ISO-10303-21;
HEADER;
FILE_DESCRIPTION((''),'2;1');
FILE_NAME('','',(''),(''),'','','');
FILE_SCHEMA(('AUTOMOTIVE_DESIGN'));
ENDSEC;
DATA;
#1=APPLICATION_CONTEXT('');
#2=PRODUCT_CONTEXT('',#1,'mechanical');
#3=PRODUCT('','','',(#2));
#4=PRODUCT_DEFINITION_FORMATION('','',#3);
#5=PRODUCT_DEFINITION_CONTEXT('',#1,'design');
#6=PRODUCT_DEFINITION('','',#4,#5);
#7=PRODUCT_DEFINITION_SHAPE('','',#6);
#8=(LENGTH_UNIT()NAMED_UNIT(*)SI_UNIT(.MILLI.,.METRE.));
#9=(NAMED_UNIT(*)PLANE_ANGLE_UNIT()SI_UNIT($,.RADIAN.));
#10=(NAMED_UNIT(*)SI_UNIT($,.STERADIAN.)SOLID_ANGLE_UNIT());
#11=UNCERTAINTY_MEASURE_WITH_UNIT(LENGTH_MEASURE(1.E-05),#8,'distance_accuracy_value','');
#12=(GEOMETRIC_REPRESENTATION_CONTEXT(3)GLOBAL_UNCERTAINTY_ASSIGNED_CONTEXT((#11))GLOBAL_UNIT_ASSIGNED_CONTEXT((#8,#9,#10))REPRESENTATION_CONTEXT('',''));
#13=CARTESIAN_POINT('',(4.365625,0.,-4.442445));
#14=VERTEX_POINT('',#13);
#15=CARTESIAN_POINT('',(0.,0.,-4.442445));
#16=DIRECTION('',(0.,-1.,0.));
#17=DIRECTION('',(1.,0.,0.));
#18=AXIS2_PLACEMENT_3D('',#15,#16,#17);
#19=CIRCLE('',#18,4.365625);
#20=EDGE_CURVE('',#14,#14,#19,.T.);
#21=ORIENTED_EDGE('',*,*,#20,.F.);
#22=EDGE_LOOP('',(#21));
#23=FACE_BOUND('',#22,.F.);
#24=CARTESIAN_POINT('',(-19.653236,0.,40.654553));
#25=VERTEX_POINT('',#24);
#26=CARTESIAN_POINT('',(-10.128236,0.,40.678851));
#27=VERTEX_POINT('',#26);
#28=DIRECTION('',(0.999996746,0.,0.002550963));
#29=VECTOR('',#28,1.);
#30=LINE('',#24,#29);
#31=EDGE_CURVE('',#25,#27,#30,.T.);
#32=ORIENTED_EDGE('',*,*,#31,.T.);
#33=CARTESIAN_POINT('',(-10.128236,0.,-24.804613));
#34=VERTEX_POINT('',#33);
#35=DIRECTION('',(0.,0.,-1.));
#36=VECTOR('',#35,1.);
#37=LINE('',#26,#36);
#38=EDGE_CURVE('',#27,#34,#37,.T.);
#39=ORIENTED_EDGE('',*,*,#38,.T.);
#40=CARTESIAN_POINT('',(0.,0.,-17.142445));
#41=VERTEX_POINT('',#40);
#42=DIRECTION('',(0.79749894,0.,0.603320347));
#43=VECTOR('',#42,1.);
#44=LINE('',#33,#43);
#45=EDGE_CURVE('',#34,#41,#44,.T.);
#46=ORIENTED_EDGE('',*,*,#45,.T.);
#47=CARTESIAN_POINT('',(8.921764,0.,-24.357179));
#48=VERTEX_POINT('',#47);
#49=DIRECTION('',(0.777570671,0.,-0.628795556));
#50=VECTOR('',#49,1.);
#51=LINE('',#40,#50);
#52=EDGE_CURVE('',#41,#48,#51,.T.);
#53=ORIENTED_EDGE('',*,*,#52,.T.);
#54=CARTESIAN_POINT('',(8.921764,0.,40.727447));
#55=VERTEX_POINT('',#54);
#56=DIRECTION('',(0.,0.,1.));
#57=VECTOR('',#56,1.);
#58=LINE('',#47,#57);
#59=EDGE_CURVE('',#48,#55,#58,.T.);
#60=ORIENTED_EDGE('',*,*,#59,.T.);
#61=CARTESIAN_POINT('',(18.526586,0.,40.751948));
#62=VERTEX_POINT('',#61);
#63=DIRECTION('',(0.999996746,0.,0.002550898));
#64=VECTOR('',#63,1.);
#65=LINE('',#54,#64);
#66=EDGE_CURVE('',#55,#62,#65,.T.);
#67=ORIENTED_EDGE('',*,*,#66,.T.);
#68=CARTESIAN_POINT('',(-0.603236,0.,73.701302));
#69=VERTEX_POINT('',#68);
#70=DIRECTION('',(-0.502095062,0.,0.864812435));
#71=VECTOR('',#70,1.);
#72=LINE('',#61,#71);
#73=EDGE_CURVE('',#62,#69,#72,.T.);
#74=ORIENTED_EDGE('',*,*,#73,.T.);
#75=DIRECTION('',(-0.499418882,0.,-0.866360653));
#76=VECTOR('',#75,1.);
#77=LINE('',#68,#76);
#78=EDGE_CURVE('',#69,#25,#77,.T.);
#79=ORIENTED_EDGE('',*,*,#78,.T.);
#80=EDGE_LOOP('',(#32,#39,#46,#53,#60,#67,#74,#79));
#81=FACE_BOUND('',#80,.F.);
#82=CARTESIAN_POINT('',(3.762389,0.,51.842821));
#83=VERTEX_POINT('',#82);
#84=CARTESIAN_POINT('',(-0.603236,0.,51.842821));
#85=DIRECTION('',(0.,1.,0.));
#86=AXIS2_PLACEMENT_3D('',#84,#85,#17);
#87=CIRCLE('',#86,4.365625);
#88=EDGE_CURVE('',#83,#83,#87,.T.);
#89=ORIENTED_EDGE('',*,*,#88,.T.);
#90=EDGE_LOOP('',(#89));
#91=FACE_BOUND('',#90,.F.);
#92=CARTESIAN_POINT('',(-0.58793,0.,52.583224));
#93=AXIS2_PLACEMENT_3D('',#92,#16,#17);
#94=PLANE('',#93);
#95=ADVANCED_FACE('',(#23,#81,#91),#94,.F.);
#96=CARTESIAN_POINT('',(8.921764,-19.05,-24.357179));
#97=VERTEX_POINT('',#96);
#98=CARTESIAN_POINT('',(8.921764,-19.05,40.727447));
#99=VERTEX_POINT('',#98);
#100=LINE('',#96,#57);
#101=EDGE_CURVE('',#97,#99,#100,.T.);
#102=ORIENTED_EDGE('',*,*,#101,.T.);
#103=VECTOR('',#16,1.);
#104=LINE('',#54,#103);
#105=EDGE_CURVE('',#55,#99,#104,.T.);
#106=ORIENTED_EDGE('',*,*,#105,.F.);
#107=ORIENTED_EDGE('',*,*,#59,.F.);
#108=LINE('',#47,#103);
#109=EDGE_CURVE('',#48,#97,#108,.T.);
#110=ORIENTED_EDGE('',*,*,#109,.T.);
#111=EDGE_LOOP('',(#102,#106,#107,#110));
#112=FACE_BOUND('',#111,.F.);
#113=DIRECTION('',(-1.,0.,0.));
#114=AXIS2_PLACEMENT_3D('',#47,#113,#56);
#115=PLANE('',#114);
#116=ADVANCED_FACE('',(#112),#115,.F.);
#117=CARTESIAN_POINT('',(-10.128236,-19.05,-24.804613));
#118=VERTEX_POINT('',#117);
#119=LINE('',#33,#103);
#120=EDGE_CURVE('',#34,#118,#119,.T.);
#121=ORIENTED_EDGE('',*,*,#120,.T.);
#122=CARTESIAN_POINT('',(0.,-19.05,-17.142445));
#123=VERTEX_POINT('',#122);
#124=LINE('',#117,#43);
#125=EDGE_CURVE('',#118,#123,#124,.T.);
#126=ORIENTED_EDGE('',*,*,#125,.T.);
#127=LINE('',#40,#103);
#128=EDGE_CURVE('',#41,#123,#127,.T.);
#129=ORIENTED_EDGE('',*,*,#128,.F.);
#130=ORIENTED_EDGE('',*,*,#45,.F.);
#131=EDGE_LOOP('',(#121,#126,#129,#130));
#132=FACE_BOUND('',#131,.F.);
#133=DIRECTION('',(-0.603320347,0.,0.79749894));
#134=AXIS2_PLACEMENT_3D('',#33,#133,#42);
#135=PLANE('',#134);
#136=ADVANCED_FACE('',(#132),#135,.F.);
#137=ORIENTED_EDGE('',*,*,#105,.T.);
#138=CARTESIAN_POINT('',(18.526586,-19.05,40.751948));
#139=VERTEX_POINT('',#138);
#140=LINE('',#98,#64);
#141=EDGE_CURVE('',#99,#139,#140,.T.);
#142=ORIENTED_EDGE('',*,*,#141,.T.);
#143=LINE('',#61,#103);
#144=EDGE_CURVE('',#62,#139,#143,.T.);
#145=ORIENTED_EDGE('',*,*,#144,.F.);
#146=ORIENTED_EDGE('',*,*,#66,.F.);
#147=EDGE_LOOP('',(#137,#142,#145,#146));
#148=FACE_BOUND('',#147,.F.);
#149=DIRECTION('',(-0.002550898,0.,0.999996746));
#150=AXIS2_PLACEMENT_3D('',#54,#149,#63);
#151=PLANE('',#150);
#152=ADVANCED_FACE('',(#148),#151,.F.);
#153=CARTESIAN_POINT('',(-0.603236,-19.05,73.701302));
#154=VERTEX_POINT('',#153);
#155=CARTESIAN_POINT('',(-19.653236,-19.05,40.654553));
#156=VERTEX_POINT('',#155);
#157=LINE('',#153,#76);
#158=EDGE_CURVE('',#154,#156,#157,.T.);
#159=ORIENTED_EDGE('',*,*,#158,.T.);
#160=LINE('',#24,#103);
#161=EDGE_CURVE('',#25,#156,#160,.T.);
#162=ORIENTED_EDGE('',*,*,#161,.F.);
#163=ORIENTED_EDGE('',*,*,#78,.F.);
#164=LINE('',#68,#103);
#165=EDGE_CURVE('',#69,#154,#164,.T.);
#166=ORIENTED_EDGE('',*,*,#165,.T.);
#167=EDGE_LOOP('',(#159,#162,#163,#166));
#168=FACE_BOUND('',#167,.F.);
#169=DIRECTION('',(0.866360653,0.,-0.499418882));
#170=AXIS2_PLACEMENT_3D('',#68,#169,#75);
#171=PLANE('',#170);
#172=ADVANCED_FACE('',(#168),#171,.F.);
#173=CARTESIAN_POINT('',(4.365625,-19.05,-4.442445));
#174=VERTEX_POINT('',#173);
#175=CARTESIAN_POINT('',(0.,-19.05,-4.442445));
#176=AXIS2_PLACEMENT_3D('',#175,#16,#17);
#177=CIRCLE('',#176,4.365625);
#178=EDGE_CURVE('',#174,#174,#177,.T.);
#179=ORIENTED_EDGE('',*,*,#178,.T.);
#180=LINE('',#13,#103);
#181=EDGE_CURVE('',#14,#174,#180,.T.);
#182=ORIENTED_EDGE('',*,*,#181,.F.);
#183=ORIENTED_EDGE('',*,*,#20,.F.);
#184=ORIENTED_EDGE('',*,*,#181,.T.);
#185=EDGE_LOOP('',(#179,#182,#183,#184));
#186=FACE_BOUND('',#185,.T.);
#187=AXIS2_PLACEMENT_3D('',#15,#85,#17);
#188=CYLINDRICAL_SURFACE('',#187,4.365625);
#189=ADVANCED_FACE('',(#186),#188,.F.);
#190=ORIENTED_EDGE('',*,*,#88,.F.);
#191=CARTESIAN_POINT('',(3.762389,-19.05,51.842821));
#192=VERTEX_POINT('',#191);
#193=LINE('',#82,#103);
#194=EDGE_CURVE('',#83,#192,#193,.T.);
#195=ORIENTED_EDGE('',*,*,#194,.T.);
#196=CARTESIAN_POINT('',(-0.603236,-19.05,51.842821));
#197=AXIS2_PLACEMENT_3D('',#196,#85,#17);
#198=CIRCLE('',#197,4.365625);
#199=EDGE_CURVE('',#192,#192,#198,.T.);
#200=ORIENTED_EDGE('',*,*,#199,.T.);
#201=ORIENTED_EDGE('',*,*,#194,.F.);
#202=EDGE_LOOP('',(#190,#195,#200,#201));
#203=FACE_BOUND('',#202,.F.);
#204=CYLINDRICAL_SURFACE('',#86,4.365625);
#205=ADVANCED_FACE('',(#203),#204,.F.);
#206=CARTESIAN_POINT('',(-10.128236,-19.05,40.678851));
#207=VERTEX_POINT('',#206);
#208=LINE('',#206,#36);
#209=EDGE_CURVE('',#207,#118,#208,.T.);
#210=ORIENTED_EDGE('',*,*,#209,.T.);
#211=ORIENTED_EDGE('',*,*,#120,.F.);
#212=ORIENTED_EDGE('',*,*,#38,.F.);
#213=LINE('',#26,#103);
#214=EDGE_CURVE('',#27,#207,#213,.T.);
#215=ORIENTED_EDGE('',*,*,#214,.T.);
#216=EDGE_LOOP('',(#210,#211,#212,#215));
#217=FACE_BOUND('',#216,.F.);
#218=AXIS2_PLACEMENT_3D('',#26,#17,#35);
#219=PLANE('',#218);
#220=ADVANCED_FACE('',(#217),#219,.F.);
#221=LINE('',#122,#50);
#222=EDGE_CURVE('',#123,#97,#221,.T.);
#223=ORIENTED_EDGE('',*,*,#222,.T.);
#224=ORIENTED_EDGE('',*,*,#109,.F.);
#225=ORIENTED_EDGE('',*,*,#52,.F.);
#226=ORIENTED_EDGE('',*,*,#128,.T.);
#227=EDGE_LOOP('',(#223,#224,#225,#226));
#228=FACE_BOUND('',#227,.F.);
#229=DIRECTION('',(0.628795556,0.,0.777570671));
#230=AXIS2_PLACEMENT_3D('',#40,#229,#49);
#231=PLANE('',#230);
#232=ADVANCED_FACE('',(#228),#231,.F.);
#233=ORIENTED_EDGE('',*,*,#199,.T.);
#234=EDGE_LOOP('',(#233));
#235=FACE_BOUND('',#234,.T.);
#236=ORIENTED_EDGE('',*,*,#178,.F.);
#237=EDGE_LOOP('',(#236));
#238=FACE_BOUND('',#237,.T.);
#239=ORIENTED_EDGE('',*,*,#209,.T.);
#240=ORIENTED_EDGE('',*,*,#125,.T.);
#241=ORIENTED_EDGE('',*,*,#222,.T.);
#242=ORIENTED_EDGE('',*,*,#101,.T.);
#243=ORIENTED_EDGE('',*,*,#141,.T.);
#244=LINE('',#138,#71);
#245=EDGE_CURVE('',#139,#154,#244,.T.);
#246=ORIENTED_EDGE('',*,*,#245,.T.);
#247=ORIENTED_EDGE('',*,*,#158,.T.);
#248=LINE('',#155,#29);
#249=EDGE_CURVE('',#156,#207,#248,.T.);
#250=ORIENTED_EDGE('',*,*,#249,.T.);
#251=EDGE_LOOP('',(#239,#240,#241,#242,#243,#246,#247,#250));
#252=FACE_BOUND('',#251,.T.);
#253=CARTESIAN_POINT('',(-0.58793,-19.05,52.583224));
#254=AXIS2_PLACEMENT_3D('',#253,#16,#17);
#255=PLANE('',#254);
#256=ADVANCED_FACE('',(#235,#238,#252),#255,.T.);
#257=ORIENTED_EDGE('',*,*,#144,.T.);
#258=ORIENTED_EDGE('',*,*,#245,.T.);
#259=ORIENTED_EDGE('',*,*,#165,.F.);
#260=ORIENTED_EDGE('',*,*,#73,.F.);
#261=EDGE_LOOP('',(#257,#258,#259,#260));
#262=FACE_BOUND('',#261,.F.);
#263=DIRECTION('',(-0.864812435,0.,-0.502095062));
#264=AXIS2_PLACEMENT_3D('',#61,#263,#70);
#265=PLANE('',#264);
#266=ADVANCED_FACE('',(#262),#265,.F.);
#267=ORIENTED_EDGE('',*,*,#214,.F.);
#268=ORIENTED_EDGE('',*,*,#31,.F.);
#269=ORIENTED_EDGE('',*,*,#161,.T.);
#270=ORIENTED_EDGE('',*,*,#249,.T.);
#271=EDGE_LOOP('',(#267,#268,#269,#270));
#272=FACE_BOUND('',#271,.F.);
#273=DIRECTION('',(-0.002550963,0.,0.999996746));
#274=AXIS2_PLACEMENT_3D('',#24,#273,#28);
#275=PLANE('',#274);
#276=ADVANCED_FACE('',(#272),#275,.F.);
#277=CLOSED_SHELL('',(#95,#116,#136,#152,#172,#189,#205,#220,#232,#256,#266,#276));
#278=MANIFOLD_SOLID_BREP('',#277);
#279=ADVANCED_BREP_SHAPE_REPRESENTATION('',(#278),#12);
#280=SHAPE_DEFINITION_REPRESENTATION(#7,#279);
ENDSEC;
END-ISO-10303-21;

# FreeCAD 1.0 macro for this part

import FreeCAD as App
import Part
import Sketcher
from FreeCAD import Vector
Q = App.Units.Quantity

doc = App.newDocument("Part")
body = doc.addObject("PartDesign::Body", "Body")

sketch1 = body.newObject("Sketcher::SketchObject", "Sketch")
sketch1.AttachmentSupport = (doc.getObject("XZ_Plane"), [""])
sketch1.MapMode = "FlatFace"
sketch1.addGeometry([
    Part.LineSegment(Vector(8.9, 40.7, 0), Vector(18.5, 40.8, 0)),
    Part.LineSegment(Vector(18.5, 40.8, 0), Vector(-0.6, 73.7, 0)),
    Part.LineSegment(Vector(-0.6, 73.7, 0), Vector(-19.7, 40.7, 0)),
    Part.LineSegment(Vector(-19.7, 40.7, 0), Vector(-10.1, 40.7, 0)),
    Part.LineSegment(Vector(-10.1, 40.7, 0), Vector(-10.1, -24.8, 0)),
    Part.LineSegment(Vector(-10.1, -24.8, 0), Vector(0, -17.1, 0)),
    Part.LineSegment(Vector(0, -17.1, 0), Vector(8.9, -24.4, 0)),
    Part.LineSegment(Vector(8.9, -24.4, 0), Vector(8.9, 40.7, 0)),
    Part.Circle(Vector(-0.6, 51.8, 0), Vector(0, 0, 1), 4.4),
    Part.Circle(Vector(0, -4.4, 0), Vector(0, 0, 1), 4.4),
], False)
sketch1.addConstraint([
    Sketcher.Constraint("Coincident", 0, 2, 1, 1),
    Sketcher.Constraint("Coincident", 1, 2, 2, 1),
    Sketcher.Constraint("Coincident", 2, 2, 3, 1),
    Sketcher.Constraint("Coincident", 3, 2, 4, 1),
    Sketcher.Constraint("Coincident", 4, 2, 5, 1),
    Sketcher.Constraint("Coincident", 5, 2, 6, 1),
    Sketcher.Constraint("Coincident", 6, 2, 7, 1),
    Sketcher.Constraint("Coincident", 7, 2, 0, 1),
    Sketcher.Constraint("Vertical", 4),
    Sketcher.Constraint("Vertical", 7),
    Sketcher.Constraint("Equal", 8, 9),
    Sketcher.Constraint("PointOnObject", 9, 3, -2),
    Sketcher.Constraint("PointOnObject", 5, 2, -2),
    Sketcher.Constraint("Parallel", 0, 3),
    Sketcher.Constraint("Vertical", 8, 3, 1, 2),
    Sketcher.Constraint("Diameter", 8, Q("0.34375 in")),
    Sketcher.Constraint("Distance", 1, Q("1.5 in")),
    Sketcher.Constraint("Distance", 5, Q("0.5 in")),
    Sketcher.Constraint("DistanceY", 5, 2, 9, 3, Q("0.5 in")),
    Sketcher.Constraint("DistanceX", 2, 2, 8, 3, Q("0.75 in")),
    Sketcher.Constraint("DistanceX", 4, 2, 6, 2, Q("0.75 in")),
    Sketcher.Constraint("DistanceX", 2, 2, 3, 2, Q("0.375 in")),
    Sketcher.Constraint("DistanceY", -1, 1, 1, 2, Q("73.701302 mm")),
    Sketcher.Constraint("DistanceY", 2, 2, 3, 2, Q("0.024298 mm")),
    Sketcher.Constraint("DistanceY", 5, 2, 2, 2, Q("57.796998 mm")),
    Sketcher.Constraint("DistanceY", 4, 2, 4, 1, Q("65.483464 mm")),
    Sketcher.Constraint("DistanceY", 7, 1, 7, 2, Q("65.084626 mm")),
    Sketcher.Constraint("DistanceY", -1, 1, 8, 3, Q("51.842821 mm")),
    Sketcher.Constraint("DistanceY", -1, 1, 3, 2, Q("40.678851 mm")),
    Sketcher.Constraint("DistanceY", 6, 2, -1, 1, Q("24.357179 mm")),
])
pad1 = body.newObject("PartDesign::Pad", "Pad")
pad1.Profile = sketch1
pad1.Length = Q("0.75 in")

doc.recompute()
